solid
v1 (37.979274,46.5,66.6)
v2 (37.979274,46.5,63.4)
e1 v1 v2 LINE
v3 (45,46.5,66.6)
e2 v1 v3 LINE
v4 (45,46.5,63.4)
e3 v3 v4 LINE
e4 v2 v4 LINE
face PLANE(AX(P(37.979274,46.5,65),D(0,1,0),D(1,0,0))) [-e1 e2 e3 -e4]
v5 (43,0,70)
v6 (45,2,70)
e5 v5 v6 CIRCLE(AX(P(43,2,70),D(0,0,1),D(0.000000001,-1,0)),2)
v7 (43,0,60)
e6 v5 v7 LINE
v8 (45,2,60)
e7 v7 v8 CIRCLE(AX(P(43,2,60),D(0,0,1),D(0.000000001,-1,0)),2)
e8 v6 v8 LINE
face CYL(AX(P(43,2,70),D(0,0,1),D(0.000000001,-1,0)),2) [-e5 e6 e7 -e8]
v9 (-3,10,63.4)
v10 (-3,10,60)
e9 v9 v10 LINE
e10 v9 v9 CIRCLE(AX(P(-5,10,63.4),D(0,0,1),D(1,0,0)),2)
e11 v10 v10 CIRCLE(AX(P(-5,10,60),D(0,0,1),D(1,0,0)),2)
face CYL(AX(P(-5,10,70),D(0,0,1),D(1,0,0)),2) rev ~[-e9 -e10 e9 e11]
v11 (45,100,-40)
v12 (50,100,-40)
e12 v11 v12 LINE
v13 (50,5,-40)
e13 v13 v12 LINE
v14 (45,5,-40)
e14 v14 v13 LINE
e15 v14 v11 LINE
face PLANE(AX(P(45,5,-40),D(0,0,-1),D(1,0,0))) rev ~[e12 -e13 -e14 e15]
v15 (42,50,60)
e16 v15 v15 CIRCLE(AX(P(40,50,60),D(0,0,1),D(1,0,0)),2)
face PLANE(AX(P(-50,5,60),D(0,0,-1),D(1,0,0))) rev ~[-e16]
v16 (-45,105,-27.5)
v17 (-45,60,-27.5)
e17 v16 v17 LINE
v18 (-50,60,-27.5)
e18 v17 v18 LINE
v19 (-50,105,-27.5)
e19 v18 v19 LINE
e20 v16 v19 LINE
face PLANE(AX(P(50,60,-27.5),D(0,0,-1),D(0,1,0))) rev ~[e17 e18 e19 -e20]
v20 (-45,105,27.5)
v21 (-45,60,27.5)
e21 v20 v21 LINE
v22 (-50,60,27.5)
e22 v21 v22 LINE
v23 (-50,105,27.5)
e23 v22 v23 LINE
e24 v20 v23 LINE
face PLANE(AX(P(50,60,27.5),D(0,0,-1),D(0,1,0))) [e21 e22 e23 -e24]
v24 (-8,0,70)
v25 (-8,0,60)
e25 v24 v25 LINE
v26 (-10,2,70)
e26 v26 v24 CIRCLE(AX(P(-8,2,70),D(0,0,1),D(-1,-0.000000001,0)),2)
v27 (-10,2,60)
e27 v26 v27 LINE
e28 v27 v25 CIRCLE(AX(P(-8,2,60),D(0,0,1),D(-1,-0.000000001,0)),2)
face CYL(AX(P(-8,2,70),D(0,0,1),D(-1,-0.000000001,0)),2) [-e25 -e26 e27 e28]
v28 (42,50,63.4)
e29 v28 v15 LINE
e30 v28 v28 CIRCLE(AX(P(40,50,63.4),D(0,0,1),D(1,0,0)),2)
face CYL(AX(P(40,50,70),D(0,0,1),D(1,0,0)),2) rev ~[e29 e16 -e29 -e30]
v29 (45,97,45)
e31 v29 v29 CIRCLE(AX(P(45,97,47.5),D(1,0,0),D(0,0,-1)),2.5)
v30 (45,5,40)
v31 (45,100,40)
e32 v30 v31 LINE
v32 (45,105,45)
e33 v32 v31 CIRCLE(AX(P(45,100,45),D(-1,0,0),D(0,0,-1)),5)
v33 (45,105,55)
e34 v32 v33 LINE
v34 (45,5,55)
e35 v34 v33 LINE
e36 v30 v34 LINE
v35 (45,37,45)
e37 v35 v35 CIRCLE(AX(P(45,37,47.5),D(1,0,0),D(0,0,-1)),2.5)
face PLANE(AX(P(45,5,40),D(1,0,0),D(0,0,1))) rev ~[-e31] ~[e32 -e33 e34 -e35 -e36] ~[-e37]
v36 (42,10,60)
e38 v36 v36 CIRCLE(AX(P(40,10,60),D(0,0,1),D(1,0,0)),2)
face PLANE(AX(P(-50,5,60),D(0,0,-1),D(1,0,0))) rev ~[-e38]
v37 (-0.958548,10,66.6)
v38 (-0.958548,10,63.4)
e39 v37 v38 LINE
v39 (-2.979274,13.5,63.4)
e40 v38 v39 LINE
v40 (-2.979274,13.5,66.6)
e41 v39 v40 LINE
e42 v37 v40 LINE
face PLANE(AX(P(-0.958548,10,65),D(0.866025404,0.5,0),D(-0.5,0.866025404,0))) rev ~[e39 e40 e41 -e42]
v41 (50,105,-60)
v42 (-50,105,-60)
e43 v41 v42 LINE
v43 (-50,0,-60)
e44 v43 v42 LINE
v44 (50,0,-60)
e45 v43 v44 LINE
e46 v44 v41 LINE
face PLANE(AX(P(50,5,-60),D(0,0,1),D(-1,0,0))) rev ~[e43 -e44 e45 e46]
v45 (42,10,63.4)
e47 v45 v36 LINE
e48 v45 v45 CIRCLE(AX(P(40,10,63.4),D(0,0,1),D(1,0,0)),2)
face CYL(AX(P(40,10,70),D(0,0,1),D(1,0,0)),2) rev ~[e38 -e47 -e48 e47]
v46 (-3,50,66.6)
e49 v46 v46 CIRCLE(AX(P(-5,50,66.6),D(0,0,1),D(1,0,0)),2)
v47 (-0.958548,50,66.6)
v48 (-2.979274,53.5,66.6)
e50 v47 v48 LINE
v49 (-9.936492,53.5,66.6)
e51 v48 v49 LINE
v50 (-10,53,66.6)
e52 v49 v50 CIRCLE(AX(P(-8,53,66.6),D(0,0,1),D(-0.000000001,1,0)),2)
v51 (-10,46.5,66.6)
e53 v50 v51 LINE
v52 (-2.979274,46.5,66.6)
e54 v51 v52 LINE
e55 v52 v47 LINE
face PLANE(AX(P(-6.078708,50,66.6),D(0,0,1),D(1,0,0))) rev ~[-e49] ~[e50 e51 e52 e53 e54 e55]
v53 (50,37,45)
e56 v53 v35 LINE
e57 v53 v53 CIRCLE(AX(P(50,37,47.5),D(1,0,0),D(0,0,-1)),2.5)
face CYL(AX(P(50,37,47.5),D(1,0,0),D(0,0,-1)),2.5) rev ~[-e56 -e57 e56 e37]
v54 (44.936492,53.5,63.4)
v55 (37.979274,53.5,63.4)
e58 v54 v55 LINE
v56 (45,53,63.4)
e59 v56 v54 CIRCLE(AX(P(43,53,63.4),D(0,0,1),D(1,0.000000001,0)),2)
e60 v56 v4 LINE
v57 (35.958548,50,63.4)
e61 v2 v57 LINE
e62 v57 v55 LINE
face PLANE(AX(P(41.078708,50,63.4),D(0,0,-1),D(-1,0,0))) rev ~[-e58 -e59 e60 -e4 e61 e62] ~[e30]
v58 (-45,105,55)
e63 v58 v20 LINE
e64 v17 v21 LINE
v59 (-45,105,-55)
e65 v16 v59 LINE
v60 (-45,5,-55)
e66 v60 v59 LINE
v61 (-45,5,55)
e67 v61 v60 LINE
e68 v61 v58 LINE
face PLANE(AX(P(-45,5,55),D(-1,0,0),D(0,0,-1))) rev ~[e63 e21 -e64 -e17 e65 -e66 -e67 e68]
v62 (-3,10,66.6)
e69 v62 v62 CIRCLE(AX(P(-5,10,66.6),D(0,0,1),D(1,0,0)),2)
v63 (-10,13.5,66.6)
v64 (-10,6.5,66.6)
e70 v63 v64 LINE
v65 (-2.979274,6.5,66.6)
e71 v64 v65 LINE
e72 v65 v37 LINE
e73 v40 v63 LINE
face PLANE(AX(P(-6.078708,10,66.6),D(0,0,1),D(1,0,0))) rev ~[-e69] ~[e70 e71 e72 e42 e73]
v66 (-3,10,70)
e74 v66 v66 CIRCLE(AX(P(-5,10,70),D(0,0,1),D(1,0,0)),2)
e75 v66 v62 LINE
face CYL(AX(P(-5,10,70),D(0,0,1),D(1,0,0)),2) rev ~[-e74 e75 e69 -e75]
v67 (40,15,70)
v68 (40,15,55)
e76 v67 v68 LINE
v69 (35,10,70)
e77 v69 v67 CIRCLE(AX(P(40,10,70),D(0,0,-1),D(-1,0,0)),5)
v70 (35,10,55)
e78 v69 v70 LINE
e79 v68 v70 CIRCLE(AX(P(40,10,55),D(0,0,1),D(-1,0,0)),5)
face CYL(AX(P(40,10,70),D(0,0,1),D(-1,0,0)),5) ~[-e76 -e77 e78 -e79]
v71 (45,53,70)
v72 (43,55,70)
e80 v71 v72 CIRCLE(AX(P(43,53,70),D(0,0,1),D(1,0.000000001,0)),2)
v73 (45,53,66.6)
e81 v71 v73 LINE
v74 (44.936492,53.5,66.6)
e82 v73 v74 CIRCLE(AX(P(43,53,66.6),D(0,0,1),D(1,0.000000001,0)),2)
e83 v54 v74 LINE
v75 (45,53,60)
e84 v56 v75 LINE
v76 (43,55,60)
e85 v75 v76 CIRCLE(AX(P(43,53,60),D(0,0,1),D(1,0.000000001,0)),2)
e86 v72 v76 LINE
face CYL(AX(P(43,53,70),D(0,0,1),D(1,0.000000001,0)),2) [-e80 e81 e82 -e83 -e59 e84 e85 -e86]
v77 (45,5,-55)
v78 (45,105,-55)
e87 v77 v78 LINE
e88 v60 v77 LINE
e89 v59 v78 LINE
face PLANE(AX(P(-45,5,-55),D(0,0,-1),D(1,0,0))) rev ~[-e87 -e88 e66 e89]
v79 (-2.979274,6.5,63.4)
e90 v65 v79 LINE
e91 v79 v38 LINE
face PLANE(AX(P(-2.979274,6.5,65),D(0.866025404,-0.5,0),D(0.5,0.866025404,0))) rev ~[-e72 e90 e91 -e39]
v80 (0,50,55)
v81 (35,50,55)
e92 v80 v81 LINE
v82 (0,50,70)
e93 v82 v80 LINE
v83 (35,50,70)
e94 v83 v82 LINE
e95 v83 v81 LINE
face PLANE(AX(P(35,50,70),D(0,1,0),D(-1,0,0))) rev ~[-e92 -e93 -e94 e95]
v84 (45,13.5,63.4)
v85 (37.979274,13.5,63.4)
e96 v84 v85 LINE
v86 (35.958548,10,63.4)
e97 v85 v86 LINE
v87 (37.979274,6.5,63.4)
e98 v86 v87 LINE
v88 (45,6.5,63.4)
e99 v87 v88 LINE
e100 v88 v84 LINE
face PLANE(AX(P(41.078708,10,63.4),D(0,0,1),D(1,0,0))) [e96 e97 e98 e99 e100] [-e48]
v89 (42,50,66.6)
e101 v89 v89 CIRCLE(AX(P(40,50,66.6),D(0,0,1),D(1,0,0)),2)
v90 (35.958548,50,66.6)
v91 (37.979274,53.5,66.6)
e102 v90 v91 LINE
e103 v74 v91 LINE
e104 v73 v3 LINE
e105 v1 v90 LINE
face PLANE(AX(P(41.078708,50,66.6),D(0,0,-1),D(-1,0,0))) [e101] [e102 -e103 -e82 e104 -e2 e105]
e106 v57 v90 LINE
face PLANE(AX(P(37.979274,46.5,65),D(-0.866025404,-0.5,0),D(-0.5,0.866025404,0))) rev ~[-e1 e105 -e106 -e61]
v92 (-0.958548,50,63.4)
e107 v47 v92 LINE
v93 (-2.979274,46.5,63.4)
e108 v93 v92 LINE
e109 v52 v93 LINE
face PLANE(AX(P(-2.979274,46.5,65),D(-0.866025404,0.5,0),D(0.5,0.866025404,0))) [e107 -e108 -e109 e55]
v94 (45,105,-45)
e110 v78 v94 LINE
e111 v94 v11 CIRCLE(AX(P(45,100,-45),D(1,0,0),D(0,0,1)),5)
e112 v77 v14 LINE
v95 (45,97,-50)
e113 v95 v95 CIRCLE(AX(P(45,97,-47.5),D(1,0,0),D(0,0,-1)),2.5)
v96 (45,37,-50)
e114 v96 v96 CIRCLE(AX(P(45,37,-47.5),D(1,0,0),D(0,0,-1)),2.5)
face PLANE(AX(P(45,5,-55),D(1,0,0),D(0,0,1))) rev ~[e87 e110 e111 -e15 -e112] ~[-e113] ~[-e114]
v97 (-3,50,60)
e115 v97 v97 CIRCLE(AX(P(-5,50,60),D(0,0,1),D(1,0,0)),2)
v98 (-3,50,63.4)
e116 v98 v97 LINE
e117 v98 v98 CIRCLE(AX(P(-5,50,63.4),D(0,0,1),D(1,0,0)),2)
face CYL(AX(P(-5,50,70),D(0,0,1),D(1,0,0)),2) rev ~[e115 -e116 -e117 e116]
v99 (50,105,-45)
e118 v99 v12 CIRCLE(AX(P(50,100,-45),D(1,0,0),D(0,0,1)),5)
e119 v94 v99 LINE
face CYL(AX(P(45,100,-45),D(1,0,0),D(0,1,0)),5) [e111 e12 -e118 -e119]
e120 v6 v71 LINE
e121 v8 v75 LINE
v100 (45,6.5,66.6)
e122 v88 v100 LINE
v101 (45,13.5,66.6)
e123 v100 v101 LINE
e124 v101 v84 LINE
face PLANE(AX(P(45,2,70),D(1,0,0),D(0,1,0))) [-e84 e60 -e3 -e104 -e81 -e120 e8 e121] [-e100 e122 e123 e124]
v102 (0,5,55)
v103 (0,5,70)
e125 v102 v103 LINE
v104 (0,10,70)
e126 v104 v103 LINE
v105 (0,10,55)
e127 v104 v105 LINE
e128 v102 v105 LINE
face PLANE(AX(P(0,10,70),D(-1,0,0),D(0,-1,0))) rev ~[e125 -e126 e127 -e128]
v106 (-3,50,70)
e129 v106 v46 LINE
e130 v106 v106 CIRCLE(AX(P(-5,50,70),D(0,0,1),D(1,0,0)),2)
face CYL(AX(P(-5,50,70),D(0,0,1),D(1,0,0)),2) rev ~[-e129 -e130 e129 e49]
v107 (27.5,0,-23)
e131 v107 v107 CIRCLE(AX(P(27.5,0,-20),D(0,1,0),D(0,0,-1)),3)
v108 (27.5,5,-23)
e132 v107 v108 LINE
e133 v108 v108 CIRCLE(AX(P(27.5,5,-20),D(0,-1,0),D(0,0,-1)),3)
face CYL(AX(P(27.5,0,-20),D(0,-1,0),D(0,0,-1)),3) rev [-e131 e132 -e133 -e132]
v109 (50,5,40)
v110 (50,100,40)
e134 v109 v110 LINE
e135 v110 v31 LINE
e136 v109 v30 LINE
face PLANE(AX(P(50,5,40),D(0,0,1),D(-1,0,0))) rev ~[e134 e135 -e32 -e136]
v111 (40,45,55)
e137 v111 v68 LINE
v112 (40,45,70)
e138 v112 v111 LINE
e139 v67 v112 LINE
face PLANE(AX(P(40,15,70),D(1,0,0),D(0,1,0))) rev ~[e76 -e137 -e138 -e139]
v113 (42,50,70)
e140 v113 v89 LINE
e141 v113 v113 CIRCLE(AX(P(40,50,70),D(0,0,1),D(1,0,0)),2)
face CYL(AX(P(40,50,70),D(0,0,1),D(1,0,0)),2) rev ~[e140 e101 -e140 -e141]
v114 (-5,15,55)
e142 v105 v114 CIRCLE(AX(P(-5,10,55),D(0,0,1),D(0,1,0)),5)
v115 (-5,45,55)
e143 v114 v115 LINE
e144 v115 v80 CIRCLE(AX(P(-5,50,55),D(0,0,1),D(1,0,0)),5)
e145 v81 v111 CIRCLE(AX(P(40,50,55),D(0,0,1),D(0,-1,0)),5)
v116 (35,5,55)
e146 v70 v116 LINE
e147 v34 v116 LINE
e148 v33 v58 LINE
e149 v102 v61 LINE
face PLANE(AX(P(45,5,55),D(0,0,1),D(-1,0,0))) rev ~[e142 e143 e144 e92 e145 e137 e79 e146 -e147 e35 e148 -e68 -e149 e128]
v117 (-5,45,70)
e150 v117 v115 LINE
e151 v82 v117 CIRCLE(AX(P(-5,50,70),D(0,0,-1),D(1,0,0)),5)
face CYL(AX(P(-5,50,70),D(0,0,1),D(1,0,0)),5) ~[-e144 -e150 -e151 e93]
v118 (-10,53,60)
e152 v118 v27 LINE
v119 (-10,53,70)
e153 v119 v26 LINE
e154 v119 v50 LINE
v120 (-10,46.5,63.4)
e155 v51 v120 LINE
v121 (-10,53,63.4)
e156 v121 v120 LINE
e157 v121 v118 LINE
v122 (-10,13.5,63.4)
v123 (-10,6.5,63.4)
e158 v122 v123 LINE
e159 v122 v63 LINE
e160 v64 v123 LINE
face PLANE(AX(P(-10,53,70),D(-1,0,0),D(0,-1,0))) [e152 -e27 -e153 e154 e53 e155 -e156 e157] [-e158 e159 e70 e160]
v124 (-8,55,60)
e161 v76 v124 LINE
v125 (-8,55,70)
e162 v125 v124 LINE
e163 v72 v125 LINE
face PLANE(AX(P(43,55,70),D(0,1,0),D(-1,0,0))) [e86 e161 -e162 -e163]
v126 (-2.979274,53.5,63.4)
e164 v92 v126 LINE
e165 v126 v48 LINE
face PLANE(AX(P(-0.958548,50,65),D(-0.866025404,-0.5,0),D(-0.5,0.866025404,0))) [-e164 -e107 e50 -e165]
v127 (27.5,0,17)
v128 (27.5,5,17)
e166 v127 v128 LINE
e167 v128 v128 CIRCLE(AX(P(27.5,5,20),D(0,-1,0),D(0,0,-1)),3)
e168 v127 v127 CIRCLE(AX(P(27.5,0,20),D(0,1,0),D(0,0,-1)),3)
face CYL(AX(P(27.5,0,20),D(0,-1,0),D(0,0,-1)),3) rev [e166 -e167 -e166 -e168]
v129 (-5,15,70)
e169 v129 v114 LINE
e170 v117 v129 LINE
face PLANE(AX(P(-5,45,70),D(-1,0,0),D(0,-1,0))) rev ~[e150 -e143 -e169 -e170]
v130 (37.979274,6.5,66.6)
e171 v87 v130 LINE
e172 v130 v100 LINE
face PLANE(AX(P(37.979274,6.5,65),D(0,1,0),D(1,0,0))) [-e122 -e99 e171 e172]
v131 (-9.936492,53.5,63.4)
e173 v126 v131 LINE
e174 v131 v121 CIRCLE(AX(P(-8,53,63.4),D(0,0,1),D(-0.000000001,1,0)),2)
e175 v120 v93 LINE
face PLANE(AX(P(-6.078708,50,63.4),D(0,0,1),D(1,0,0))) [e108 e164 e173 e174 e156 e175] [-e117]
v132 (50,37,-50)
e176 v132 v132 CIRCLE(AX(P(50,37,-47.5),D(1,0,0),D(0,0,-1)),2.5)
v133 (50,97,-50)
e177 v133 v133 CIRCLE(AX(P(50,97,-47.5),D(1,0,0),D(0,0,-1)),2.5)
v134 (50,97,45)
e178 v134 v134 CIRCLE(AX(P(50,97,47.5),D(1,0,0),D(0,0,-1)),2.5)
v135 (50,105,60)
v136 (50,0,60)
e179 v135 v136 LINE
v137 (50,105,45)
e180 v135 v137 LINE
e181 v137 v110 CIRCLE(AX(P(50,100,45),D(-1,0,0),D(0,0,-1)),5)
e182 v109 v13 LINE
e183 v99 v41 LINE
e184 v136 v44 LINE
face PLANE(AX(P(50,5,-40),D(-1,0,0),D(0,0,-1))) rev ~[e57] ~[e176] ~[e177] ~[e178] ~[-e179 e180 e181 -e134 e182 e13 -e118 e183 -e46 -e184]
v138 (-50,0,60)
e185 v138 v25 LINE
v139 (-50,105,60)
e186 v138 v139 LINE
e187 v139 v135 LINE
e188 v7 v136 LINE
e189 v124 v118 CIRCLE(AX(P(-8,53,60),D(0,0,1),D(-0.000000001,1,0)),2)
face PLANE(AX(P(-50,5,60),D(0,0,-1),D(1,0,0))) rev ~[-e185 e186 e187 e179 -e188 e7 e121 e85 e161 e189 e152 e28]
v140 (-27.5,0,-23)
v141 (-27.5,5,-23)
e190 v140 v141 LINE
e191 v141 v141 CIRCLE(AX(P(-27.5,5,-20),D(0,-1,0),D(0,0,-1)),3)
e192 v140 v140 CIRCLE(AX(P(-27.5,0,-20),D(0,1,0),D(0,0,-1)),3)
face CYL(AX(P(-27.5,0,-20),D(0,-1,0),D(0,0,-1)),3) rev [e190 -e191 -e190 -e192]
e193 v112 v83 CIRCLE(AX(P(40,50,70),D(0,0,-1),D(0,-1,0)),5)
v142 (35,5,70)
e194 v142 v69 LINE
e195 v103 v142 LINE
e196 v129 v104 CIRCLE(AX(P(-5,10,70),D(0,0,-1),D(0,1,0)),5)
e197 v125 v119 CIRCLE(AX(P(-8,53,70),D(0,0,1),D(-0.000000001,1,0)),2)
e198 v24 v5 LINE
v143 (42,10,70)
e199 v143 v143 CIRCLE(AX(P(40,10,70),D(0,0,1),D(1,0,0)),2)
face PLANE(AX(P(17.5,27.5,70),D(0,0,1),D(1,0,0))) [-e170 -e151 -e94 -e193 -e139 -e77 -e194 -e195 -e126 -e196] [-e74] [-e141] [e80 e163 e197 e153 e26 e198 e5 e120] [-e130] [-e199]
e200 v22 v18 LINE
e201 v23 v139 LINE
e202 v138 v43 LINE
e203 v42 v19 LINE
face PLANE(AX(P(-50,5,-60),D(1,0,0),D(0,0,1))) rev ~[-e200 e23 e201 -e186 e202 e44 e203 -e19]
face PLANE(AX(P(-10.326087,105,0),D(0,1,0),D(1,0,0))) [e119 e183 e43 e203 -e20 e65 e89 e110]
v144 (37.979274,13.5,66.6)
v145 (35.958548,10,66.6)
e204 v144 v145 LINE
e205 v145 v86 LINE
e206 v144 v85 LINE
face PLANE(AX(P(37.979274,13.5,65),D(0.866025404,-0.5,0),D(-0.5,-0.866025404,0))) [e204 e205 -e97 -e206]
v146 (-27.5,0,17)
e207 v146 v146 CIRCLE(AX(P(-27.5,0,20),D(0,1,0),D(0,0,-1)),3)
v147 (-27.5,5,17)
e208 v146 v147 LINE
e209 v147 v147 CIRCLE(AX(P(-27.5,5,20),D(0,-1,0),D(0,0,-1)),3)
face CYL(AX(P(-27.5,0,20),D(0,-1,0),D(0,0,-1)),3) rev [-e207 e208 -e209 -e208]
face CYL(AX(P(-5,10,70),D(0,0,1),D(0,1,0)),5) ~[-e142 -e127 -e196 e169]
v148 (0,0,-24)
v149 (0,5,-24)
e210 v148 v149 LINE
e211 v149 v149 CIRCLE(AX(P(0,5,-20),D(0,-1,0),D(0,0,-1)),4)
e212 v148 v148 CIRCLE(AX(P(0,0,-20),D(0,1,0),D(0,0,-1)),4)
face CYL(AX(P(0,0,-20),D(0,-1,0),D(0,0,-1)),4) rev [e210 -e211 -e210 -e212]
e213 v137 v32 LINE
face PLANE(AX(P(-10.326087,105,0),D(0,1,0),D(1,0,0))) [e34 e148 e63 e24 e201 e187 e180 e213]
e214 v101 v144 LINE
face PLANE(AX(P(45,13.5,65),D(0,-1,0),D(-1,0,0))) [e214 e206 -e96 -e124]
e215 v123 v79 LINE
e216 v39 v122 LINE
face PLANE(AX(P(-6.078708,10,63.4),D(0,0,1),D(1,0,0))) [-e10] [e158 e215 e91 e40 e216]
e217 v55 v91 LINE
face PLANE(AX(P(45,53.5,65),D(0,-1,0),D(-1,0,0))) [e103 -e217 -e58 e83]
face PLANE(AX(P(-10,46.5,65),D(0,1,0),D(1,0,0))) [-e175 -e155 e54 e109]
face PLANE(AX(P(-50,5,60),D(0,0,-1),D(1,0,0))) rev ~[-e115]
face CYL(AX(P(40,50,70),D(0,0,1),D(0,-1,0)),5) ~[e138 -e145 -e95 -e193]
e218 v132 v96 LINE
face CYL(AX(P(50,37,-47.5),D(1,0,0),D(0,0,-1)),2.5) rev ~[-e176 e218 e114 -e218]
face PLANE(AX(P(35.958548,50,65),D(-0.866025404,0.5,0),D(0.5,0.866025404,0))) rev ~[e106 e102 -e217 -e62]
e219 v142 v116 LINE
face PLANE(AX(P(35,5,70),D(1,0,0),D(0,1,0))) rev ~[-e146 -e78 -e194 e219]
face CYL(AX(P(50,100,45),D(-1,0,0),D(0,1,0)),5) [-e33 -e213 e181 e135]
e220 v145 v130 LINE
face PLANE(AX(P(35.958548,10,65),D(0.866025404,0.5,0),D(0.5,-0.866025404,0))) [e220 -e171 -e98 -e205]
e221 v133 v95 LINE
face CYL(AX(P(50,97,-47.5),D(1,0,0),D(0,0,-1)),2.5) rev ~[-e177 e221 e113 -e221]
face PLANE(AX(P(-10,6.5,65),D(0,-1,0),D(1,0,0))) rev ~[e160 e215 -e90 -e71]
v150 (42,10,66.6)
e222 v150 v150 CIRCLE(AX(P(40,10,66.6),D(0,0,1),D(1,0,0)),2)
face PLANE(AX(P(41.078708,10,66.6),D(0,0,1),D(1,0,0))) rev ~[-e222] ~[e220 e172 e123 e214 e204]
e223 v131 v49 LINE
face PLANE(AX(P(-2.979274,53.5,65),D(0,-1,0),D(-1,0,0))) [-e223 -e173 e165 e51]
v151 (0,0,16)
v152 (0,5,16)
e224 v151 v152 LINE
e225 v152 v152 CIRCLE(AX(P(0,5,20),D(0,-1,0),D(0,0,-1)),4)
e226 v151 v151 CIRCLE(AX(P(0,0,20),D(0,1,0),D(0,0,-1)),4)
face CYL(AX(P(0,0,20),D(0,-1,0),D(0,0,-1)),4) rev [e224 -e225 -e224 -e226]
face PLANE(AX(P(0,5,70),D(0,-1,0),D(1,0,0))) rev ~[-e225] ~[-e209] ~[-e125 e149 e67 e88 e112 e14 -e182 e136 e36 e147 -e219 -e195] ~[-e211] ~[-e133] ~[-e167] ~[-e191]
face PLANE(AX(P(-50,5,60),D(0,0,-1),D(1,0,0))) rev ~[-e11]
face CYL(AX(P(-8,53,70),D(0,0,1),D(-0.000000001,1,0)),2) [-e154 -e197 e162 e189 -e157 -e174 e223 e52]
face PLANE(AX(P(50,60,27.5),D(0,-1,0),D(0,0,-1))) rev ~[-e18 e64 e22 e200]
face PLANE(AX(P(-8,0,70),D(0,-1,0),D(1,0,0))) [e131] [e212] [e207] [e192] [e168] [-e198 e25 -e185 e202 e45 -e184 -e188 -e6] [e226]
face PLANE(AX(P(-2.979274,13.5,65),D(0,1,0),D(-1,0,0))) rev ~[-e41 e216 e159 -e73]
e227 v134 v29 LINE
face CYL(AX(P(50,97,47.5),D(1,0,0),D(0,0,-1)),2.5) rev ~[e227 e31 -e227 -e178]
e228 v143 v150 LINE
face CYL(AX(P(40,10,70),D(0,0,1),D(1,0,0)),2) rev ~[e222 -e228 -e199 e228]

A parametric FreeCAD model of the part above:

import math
import FreeCAD as App
import Part
import Sketcher

V = App.Vector
Q = App.Units.Quantity


def edges_at(feature, points):
    """Names of the edges that pass closest to the given points."""
    edges = feature.Shape.Edges
    near = lambda p: min(range(len(edges)), key=lambda i: edges[i].distToShape(Part.Vertex(*p))[0])
    return sorted({f"Edge{near(p) + 1}" for p in points})


def add_polygon(sketch, points):
    """Adds a closed chain of lines whose ends are joined by coincident constraints."""
    first, n = sketch.GeometryCount, len(points)
    for a, b in zip(points, points[1:] + points[:1]):
        sketch.addGeometry(Part.LineSegment(App.Vector(*a, 0), App.Vector(*b, 0)), False)
    for i in range(n):
        sketch.addConstraint(Sketcher.Constraint("Coincident", first + i, 2, first + (i + 1) % n, 1))

doc = App.newDocument("Part")
body = doc.addObject("PartDesign::Body", "Body")

sketch1 = body.newObject("Sketcher::SketchObject", "Sketch")
sketch1.AttachmentSupport = (doc.getObject("XZ_Plane"), [""])
sketch1.MapMode = "FlatFace"
add_polygon(sketch1, [(-50, -60), (-50, 60), (50, 60), (50, -60)])
sketch1.addConstraint([
    Sketcher.Constraint("Vertical", 0),
    Sketcher.Constraint("Horizontal", 1),
    Sketcher.Constraint("Vertical", 2),
    Sketcher.Constraint("Horizontal", 3),
    Sketcher.Constraint("Symmetric", 0, 2, 2, 2, -1, 1),
    Sketcher.Constraint("DistanceX", 1, 1, 1, 2, Q("100 mm")),
    Sketcher.Constraint("DistanceY", 0, 1, 0, 2, Q("120 mm")),
])
pad1 = body.newObject("PartDesign::Pad", "Pad")
pad1.Profile = sketch1
pad1.Length = 5
pad1.Reversed = True

sketch2 = body.newObject("Sketcher::SketchObject", "Sketch001")
sketch2.AttachmentSupport = (doc.getObject("XZ_Plane"), [""])
sketch2.MapMode = "FlatFace"
sketch2.addGeometry(Part.Circle(V(27.5, 20, 0), V(0, 0, 1), 3), False)
sketch2.addConstraint([
    Sketcher.Constraint("Diameter", 0, Q("6 mm")),
    Sketcher.Constraint("DistanceY", -1, 1, 0, 3, Q("20 mm")),
    Sketcher.Constraint("DistanceX", -1, 1, 0, 3, Q("27.5 mm")),
])
pocket1 = body.newObject("PartDesign::Pocket", "Pocket")
pocket1.Profile = sketch2
pocket1.Type = "UpToFirst"

sketch3 = body.newObject("Sketcher::SketchObject", "Sketch002")
sketch3.AttachmentSupport = (doc.getObject("XZ_Plane"), [""])
sketch3.MapMode = "FlatFace"
sketch3.addGeometry(Part.Circle(V(0, 20, 0), V(0, 0, 1), 4), False)
sketch3.addConstraint([
    Sketcher.Constraint("PointOnObject", 0, 3, -2),
    Sketcher.Constraint("Diameter", 0, Q("8 mm")),
    Sketcher.Constraint("DistanceY", -1, 1, 0, 3, Q("20 mm")),
])
pocket2 = body.newObject("PartDesign::Pocket", "Pocket001")
pocket2.Profile = sketch3
pocket2.Type = "UpToFirst"

sketch4 = body.newObject("Sketcher::SketchObject", "Sketch003")
sketch4.AttachmentSupport = (doc.getObject("XZ_Plane"), [""])
sketch4.MapMode = "FlatFace"
sketch4.addGeometry(Part.Circle(V(-27.5, 20, 0), V(0, 0, 1), 3), False)
sketch4.addConstraint([
    Sketcher.Constraint("Diameter", 0, Q("6 mm")),
    Sketcher.Constraint("DistanceY", -1, 1, 0, 3, Q("20 mm")),
    Sketcher.Constraint("DistanceX", 0, 3, -1, 1, Q("27.5 mm")),
])
pocket3 = body.newObject("PartDesign::Pocket", "Pocket002")
pocket3.Profile = sketch4
pocket3.Type = "UpToFirst"

sketch5 = body.newObject("Sketcher::SketchObject", "Sketch004")
sketch5.AttachmentSupport = (doc.getObject("XZ_Plane"), [""])
sketch5.MapMode = "FlatFace"
sketch5.addGeometry(Part.Circle(V(-27.5, -20, 0), V(0, 0, 1), 3), False)
sketch5.addConstraint([
    Sketcher.Constraint("Diameter", 0, Q("6 mm")),
    Sketcher.Constraint("DistanceY", 0, 3, -1, 1, Q("20 mm")),
    Sketcher.Constraint("DistanceX", 0, 3, -1, 1, Q("27.5 mm")),
])
pocket4 = body.newObject("PartDesign::Pocket", "Pocket003")
pocket4.Profile = sketch5
pocket4.Type = "UpToFirst"

sketch6 = body.newObject("Sketcher::SketchObject", "Sketch005")
sketch6.AttachmentSupport = (doc.getObject("XZ_Plane"), [""])
sketch6.MapMode = "FlatFace"
sketch6.addGeometry(Part.Circle(V(0, -20, 0), V(0, 0, 1), 4), False)
sketch6.addConstraint([
    Sketcher.Constraint("PointOnObject", 0, 3, -2),
    Sketcher.Constraint("Diameter", 0, Q("8 mm")),
    Sketcher.Constraint("DistanceY", 0, 3, -1, 1, Q("20 mm")),
])
pocket5 = body.newObject("PartDesign::Pocket", "Pocket004")
pocket5.Profile = sketch6
pocket5.Type = "UpToFirst"

sketch7 = body.newObject("Sketcher::SketchObject", "Sketch006")
sketch7.AttachmentSupport = (doc.getObject("XZ_Plane"), [""])
sketch7.MapMode = "FlatFace"
sketch7.addGeometry(Part.Circle(V(27.5, -20, 0), V(0, 0, 1), 3), False)
sketch7.addConstraint([
    Sketcher.Constraint("Diameter", 0, Q("6 mm")),
    Sketcher.Constraint("DistanceY", 0, 3, -1, 1, Q("20 mm")),
    Sketcher.Constraint("DistanceX", -1, 1, 0, 3, Q("27.5 mm")),
])
pocket6 = body.newObject("PartDesign::Pocket", "Pocket005")
pocket6.Profile = sketch7
pocket6.Type = "UpToFirst"

sketch8 = body.newObject("Sketcher::SketchObject", "Sketch007")
sketch8.AttachmentSupport = (doc.getObject("XZ_Plane"), [""])
sketch8.MapMode = "FlatFace"
sketch8.AttachmentOffset = App.Placement(V(0, 0, -5), App.Rotation())
add_polygon(sketch8, [(45, -40), (50, -40), (50, -60), (-50, -60), (-50, 60), (50, 60), (50, 40), (45, 40), (45, 55), (-45, 55), (-45, -55), (45, -55)])
sketch8.addConstraint([
    Sketcher.Constraint("Horizontal", 0),
    Sketcher.Constraint("Vertical", 1),
    Sketcher.Constraint("Horizontal", 2),
    Sketcher.Constraint("Vertical", 3),
    Sketcher.Constraint("Horizontal", 4),
    Sketcher.Constraint("Vertical", 5),
    Sketcher.Constraint("Horizontal", 6),
    Sketcher.Constraint("Vertical", 7),
    Sketcher.Constraint("Horizontal", 8),
    Sketcher.Constraint("Vertical", 9),
    Sketcher.Constraint("Horizontal", 10),
    Sketcher.Constraint("Vertical", 11),
    Sketcher.Constraint("Symmetric", 1, 2, 3, 2, -1, 1),
    Sketcher.Constraint("Symmetric", 7, 2, 9, 2, -1, 1),
    Sketcher.Constraint("Symmetric", 0, 2, 5, 2, -1),
    Sketcher.Constraint("Vertical", 7, 2, 10, 2),
    Sketcher.Constraint("DistanceX", 0, 1, 0, 2, Q("5 mm")),
    Sketcher.Constraint("DistanceX", 2, 2, 2, 1, Q("100 mm")),
    Sketcher.Constraint("DistanceY", 1, 2, 1, 1, Q("20 mm")),
    Sketcher.Constraint("DistanceY", 3, 1, 3, 2, Q("120 mm")),
    Sketcher.Constraint("DistanceY", 7, 1, 7, 2, Q("15 mm")),
])
pad2 = body.newObject("PartDesign::Pad", "Pad001")
pad2.Profile = sketch8
pad2.Length = 100
pad2.Reversed = True

sketch9 = body.newObject("Sketcher::SketchObject", "Sketch008")
sketch9.AttachmentSupport = (doc.getObject("YZ_Plane"), [""])
sketch9.MapMode = "FlatFace"
sketch9.AttachmentOffset = App.Placement(V(0, 0, 50), App.Rotation())
add_polygon(sketch9, [(105, 27.5), (60, 27.5), (60, -27.5), (105, -27.5)])
sketch9.addConstraint([
    Sketcher.Constraint("Horizontal", 0),
    Sketcher.Constraint("Vertical", 1),
    Sketcher.Constraint("Horizontal", 2),
    Sketcher.Constraint("Vertical", 3),
    Sketcher.Constraint("DistanceX", 0, 2, 0, 1, Q("45 mm")),
    Sketcher.Constraint("DistanceY", 1, 2, 1, 1, Q("55 mm")),
    Sketcher.Constraint("DistanceX", -1, 1, 0, 2, Q("60 mm")),
    Sketcher.Constraint("DistanceY", -1, 1, 0, 2, Q("27.5 mm")),
])
pocket7 = body.newObject("PartDesign::Pocket", "Pocket006")
pocket7.Profile = sketch9
pocket7.Type = "ThroughAll"

sketch10 = body.newObject("Sketcher::SketchObject", "Sketch009")
sketch10.AttachmentSupport = (doc.getObject("XY_Plane"), [""])
sketch10.MapMode = "FlatFace"
sketch10.AttachmentOffset = App.Placement(V(0, 0, 60), App.Rotation())
sketch10.addGeometry([
    Part.LineSegment(V(0, 5, 0), V(35, 5, 0)),
    Part.LineSegment(V(35, 5, 0), V(35, 10, 0)),
    Part.ArcOfCircle(Part.Circle(V(40, 10, 0), V(0, 0, 1), 5), math.radians(90), math.radians(180)),
    Part.LineSegment(V(40, 15, 0), V(40, 45, 0)),
    Part.ArcOfCircle(Part.Circle(V(40, 50, 0), V(0, 0, 1), 5), math.radians(180), math.radians(270)),
    Part.LineSegment(V(35, 50, 0), V(0, 50, 0)),
    Part.ArcOfCircle(Part.Circle(V(-5, 50, 0), V(0, 0, 1), 5), math.radians(-90), math.radians(0)),
    Part.LineSegment(V(-5, 45, 0), V(-5, 15, 0)),
    Part.ArcOfCircle(Part.Circle(V(-5, 10, 0), V(0, 0, 1), 5), math.radians(0), math.radians(90)),
    Part.LineSegment(V(0, 10, 0), V(0, 5, 0)),
], False)
sketch10.addConstraint([
    Sketcher.Constraint("Coincident", 0, 2, 1, 1),
    Sketcher.Constraint("Tangent", 1, 2, 2, 2),
    Sketcher.Constraint("Coincident", 2, 1, 3, 1),
    Sketcher.Constraint("Coincident", 3, 2, 4, 2),
    Sketcher.Constraint("Coincident", 4, 1, 5, 1),
    Sketcher.Constraint("Coincident", 5, 2, 6, 2),
    Sketcher.Constraint("Coincident", 6, 1, 7, 1),
    Sketcher.Constraint("Coincident", 7, 2, 8, 2),
    Sketcher.Constraint("Tangent", 8, 1, 9, 1),
    Sketcher.Constraint("Coincident", 9, 2, 0, 1),
    Sketcher.Constraint("Horizontal", 0),
    Sketcher.Constraint("Vertical", 1),
    Sketcher.Constraint("Vertical", 3),
    Sketcher.Constraint("Horizontal", 5),
    Sketcher.Constraint("Vertical", 7),
    Sketcher.Constraint("Vertical", 9),
    Sketcher.Constraint("Equal", 2, 4),
    Sketcher.Constraint("Equal", 4, 6),
    Sketcher.Constraint("Equal", 6, 8),
    Sketcher.Constraint("PointOnObject", 5, 2, -2),
    Sketcher.Constraint("PointOnObject", 8, 1, -2),
    Sketcher.Constraint("Horizontal", 4, 3, 6, 3),
    Sketcher.Constraint("Horizontal", 2, 3, 8, 3),
    Sketcher.Constraint("Horizontal", 6, 3, 4, 1),
    Sketcher.Constraint("Vertical", 2, 3, 4, 3),
    Sketcher.Constraint("Vertical", 4, 3, 2, 1),
    Sketcher.Constraint("Vertical", 8, 3, 6, 1),
    Sketcher.Constraint("Radius", 2, Q("5 mm")),
    Sketcher.Constraint("DistanceX", 0, 1, 0, 2, Q("35 mm")),
    Sketcher.Constraint("DistanceY", 1, 1, 1, 2, Q("5 mm")),
    Sketcher.Constraint("DistanceY", 3, 1, 3, 2, Q("30 mm")),
    Sketcher.Constraint("DistanceY", -1, 1, 2, 3, Q("10 mm")),
])
pocket8 = body.newObject("PartDesign::Pocket", "Pocket007")
pocket8.Profile = sketch10
pocket8.Type = "UpToFirst"

sketch11 = body.newObject("Sketcher::SketchObject", "Sketch010")
sketch11.AttachmentSupport = (doc.getObject("XY_Plane"), [""])
sketch11.MapMode = "FlatFace"
sketch11.AttachmentOffset = App.Placement(V(0, 0, 70), App.Rotation())
sketch11.addGeometry([
    Part.LineSegment(V(-8, 0, 0), V(43, 0, 0)),
    Part.ArcOfCircle(Part.Circle(V(43, 2, 0), V(0, 0, 1), 2), math.radians(-90), math.radians(0)),
    Part.LineSegment(V(45, 2, 0), V(45, 53, 0)),
    Part.ArcOfCircle(Part.Circle(V(43, 53, 0), V(0, 0, 1), 2), math.radians(0), math.radians(90)),
    Part.LineSegment(V(43, 55, 0), V(-8, 55, 0)),
    Part.ArcOfCircle(Part.Circle(V(-8, 53, 0), V(0, 0, 1), 2), math.radians(90), math.radians(180)),
    Part.LineSegment(V(-10, 53, 0), V(-10, 2, 0)),
    Part.ArcOfCircle(Part.Circle(V(-8, 2, 0), V(0, 0, 1), 2), math.radians(-180), math.radians(-90)),
    Part.Circle(V(-5, 10, 0), V(0, 0, 1), 2),
    Part.LineSegment(V(35, 5, 0), V(0, 5, 0)),
    Part.LineSegment(V(0, 5, 0), V(0, 10, 0)),
    Part.ArcOfCircle(Part.Circle(V(-5, 10, 0), V(0, 0, 1), 5), math.radians(0), math.radians(90)),
    Part.LineSegment(V(-5, 15, 0), V(-5, 45, 0)),
    Part.ArcOfCircle(Part.Circle(V(-5, 50, 0), V(0, 0, 1), 5), math.radians(-90), math.radians(0)),
    Part.LineSegment(V(0, 50, 0), V(35, 50, 0)),
    Part.ArcOfCircle(Part.Circle(V(40, 50, 0), V(0, 0, 1), 5), math.radians(180), math.radians(270)),
    Part.LineSegment(V(40, 45, 0), V(40, 15, 0)),
    Part.ArcOfCircle(Part.Circle(V(40, 10, 0), V(0, 0, 1), 5), math.radians(90), math.radians(180)),
    Part.LineSegment(V(35, 10, 0), V(35, 5, 0)),
    Part.Circle(V(40, 10, 0), V(0, 0, 1), 2),
    Part.Circle(V(-5, 50, 0), V(0, 0, 1), 2),
    Part.Circle(V(40, 50, 0), V(0, 0, 1), 2),
], False)
sketch11.addConstraint([
    Sketcher.Constraint("Tangent", 0, 2, 1, 1),
    Sketcher.Constraint("Tangent", 1, 2, 2, 1),
    Sketcher.Constraint("Tangent", 2, 2, 3, 1),
    Sketcher.Constraint("Tangent", 3, 2, 4, 1),
    Sketcher.Constraint("Tangent", 4, 2, 5, 1),
    Sketcher.Constraint("Tangent", 5, 2, 6, 1),
    Sketcher.Constraint("Tangent", 6, 2, 7, 1),
    Sketcher.Constraint("Tangent", 7, 2, 0, 1),
    Sketcher.Constraint("Coincident", 9, 2, 10, 1),
    Sketcher.Constraint("Tangent", 10, 2, 11, 1),
    Sketcher.Constraint("Coincident", 11, 2, 12, 1),
    Sketcher.Constraint("Coincident", 12, 2, 13, 1),
    Sketcher.Constraint("Coincident", 13, 2, 14, 1),
    Sketcher.Constraint("Coincident", 14, 2, 15, 1),
    Sketcher.Constraint("Coincident", 15, 2, 16, 1),
    Sketcher.Constraint("Coincident", 16, 2, 17, 1),
    Sketcher.Constraint("Tangent", 17, 2, 18, 1),
    Sketcher.Constraint("Coincident", 18, 2, 9, 1),
    Sketcher.Constraint("Horizontal", 0),
    Sketcher.Constraint("Vertical", 2),
    Sketcher.Constraint("Horizontal", 4),
    Sketcher.Constraint("Vertical", 6),
    Sketcher.Constraint("Horizontal", 9),
    Sketcher.Constraint("Vertical", 10),
    Sketcher.Constraint("Vertical", 12),
    Sketcher.Constraint("Horizontal", 14),
    Sketcher.Constraint("Vertical", 16),
    Sketcher.Constraint("Vertical", 18),
    Sketcher.Constraint("Coincident", 11, 3, 8, 3),
    Sketcher.Constraint("Coincident", 19, 3, 17, 3),
    Sketcher.Constraint("Coincident", 20, 3, 13, 3),
    Sketcher.Constraint("Coincident", 21, 3, 15, 3),
    Sketcher.Constraint("Equal", 1, 3),
    Sketcher.Constraint("Equal", 3, 5),
    Sketcher.Constraint("Equal", 5, 7),
    Sketcher.Constraint("Equal", 7, 8),
    Sketcher.Constraint("Equal", 11, 13),
    Sketcher.Constraint("Equal", 13, 15),
    Sketcher.Constraint("Equal", 15, 17),
    Sketcher.Constraint("Equal", 8, 19),
    Sketcher.Constraint("Equal", 19, 20),
    Sketcher.Constraint("Equal", 20, 21),
    Sketcher.Constraint("PointOnObject", 0, 2, -1),
    Sketcher.Constraint("PointOnObject", 9, 2, -2),
    Sketcher.Constraint("PointOnObject", 13, 2, -2),
    Sketcher.Constraint("Horizontal", 13, 3, 15, 3),
    Sketcher.Constraint("Horizontal", 11, 3, 17, 3),
    Sketcher.Constraint("Horizontal", 21, 3, 13, 2),
    Sketcher.Constraint("Vertical", 15, 3, 17, 3),
    Sketcher.Constraint("Vertical", 20, 3, 11, 2),
    Sketcher.Constraint("Vertical", 21, 3, 15, 2),
    Sketcher.Constraint("Equal", 4, 2),
    Sketcher.Constraint("Diameter", 8, Q("4 mm")),
    Sketcher.Constraint("Radius", 11, Q("5 mm")),
    Sketcher.Constraint("DistanceX", 0, 1, 0, 2, Q("51 mm")),
    Sketcher.Constraint("DistanceX", 9, 2, 9, 1, Q("35 mm")),
    Sketcher.Constraint("DistanceY", 10, 1, 10, 2, Q("5 mm")),
    Sketcher.Constraint("DistanceY", 12, 1, 12, 2, Q("30 mm")),
    Sketcher.Constraint("DistanceX", -1, 1, 1, 3, Q("43 mm")),
    Sketcher.Constraint("DistanceY", -1, 1, 8, 3, Q("10 mm")),
])
pad3 = body.newObject("PartDesign::Pad", "Pad002")
pad3.Profile = sketch11
pad3.Length = 10
pad3.Reversed = True

sketch12 = body.newObject("Sketcher::SketchObject", "Sketch011")
sketch12.AttachmentSupport = (doc.getObject("XY_Plane"), [""])
sketch12.MapMode = "FlatFace"
sketch12.AttachmentOffset = App.Placement(V(0, 0, 65), App.Rotation())
add_polygon(sketch12, [(45, 53.5), (37.979274, 53.5), (35.958548, 50), (37.979274, 46.5), (45, 46.5)])
add_polygon(sketch12, [(-0.958548, 50), (-2.979274, 53.5), (-10, 53.5), (-10, 46.5), (-2.979274, 46.5)])
add_polygon(sketch12, [(35.958548, 10), (37.979274, 6.5), (45, 6.5), (45, 13.5), (37.979274, 13.5)])
add_polygon(sketch12, [(-0.958548, 10), (-2.979274, 13.5), (-10, 13.5), (-10, 6.5), (-2.979274, 6.5)])
sketch12.addConstraint([
    Sketcher.Constraint("Horizontal", 0),
    Sketcher.Constraint("Horizontal", 3),
    Sketcher.Constraint("Vertical", 4),
    Sketcher.Constraint("Horizontal", 6),
    Sketcher.Constraint("Vertical", 7),
    Sketcher.Constraint("Horizontal", 8),
    Sketcher.Constraint("Horizontal", 11),
    Sketcher.Constraint("Vertical", 12),
    Sketcher.Constraint("Horizontal", 13),
    Sketcher.Constraint("Horizontal", 16),
    Sketcher.Constraint("Vertical", 17),
    Sketcher.Constraint("Horizontal", 18),
    Sketcher.Constraint("Parallel", 2, 5),
    Sketcher.Constraint("Parallel", 1, 9),
    Sketcher.Constraint("Parallel", 5, 10),
    Sketcher.Constraint("Parallel", 9, 14),
    Sketcher.Constraint("Parallel", 10, 15),
    Sketcher.Constraint("Parallel", 14, 19),
    Sketcher.Constraint("Horizontal", 4, 2, 5, 2),
    Sketcher.Constraint("Horizontal", 3, 2, 7, 2),
    Sketcher.Constraint("Horizontal", 1, 2, 9, 2),
    Sketcher.Constraint("Horizontal", 13, 2, 15, 2),
    Sketcher.Constraint("Horizontal", 11, 2, 17, 2),
    Sketcher.Constraint("Horizontal", 14, 2, 19, 2),
    Sketcher.Constraint("Vertical", 0, 2, 2, 2),
    Sketcher.Constraint("Vertical", 5, 2, 8, 2),
    Sketcher.Constraint("Vertical", 2, 2, 10, 2),
    Sketcher.Constraint("Vertical", 4, 2, 11, 2),
    Sketcher.Constraint("Vertical", 10, 2, 13, 2),
    Sketcher.Constraint("Vertical", 1, 2, 14, 2),
    Sketcher.Constraint("Vertical", 8, 2, 15, 2),
    Sketcher.Constraint("Vertical", 7, 2, 16, 2),
    Sketcher.Constraint("Equal", 3, 6),
    Sketcher.Constraint("DistanceY", 4, 1, 4, 2, Q("7 mm")),
    Sketcher.Constraint("Angle", 1, Q("-120 deg")),
    Sketcher.Constraint("DistanceY", -1, 1, 1, 2, Q("50 mm")),
    Sketcher.Constraint("DistanceX", -1, 1, 3, 2, Q("45 mm")),
    Sketcher.Constraint("DistanceX", 6, 2, -1, 1, Q("10 mm")),
    Sketcher.Constraint("DistanceY", -1, 1, 14, 2, Q("10 mm")),
    Sketcher.Constraint("DistanceX", 0, 2, 0, 1, Q("7.020726 mm")),
])
pocket9 = body.newObject("PartDesign::Pocket", "Pocket008")
pocket9.Profile = sketch12
pocket9.Length = 3.2
pocket9.Midplane = True

sketch13 = body.newObject("Sketcher::SketchObject", "Sketch012")
sketch13.AttachmentSupport = (doc.getObject("YZ_Plane"), [""])
sketch13.MapMode = "FlatFace"
sketch13.AttachmentOffset = App.Placement(V(0, 0, 50), App.Rotation())
sketch13.addGeometry(Part.Circle(V(97, 47.5, 0), V(0, 0, 1), 2.5), False)
sketch13.addConstraint([
    Sketcher.Constraint("Diameter", 0, Q("5 mm")),
    Sketcher.Constraint("DistanceX", -1, 1, 0, 3, Q("97 mm")),
    Sketcher.Constraint("DistanceY", -1, 1, 0, 3, Q("47.5 mm")),
])
pocket10 = body.newObject("PartDesign::Pocket", "Pocket009")
pocket10.Profile = sketch13
pocket10.Type = "UpToFirst"

sketch14 = body.newObject("Sketcher::SketchObject", "Sketch013")
sketch14.AttachmentSupport = (doc.getObject("YZ_Plane"), [""])
sketch14.MapMode = "FlatFace"
sketch14.AttachmentOffset = App.Placement(V(0, 0, 50), App.Rotation())
sketch14.addGeometry(Part.Circle(V(37, 47.5, 0), V(0, 0, 1), 2.5), False)
sketch14.addConstraint([
    Sketcher.Constraint("Diameter", 0, Q("5 mm")),
    Sketcher.Constraint("DistanceX", -1, 1, 0, 3, Q("37 mm")),
    Sketcher.Constraint("DistanceY", -1, 1, 0, 3, Q("47.5 mm")),
])
pocket11 = body.newObject("PartDesign::Pocket", "Pocket010")
pocket11.Profile = sketch14
pocket11.Type = "UpToFirst"

sketch15 = body.newObject("Sketcher::SketchObject", "Sketch014")
sketch15.AttachmentSupport = (doc.getObject("YZ_Plane"), [""])
sketch15.MapMode = "FlatFace"
sketch15.AttachmentOffset = App.Placement(V(0, 0, 50), App.Rotation())
sketch15.addGeometry(Part.Circle(V(97, -47.5, 0), V(0, 0, 1), 2.5), False)
sketch15.addConstraint([
    Sketcher.Constraint("Diameter", 0, Q("5 mm")),
    Sketcher.Constraint("DistanceX", -1, 1, 0, 3, Q("97 mm")),
    Sketcher.Constraint("DistanceY", 0, 3, -1, 1, Q("47.5 mm")),
])
pocket12 = body.newObject("PartDesign::Pocket", "Pocket011")
pocket12.Profile = sketch15
pocket12.Type = "UpToFirst"

sketch16 = body.newObject("Sketcher::SketchObject", "Sketch015")
sketch16.AttachmentSupport = (doc.getObject("YZ_Plane"), [""])
sketch16.MapMode = "FlatFace"
sketch16.AttachmentOffset = App.Placement(V(0, 0, 50), App.Rotation())
sketch16.addGeometry(Part.Circle(V(37, -47.5, 0), V(0, 0, 1), 2.5), False)
sketch16.addConstraint([
    Sketcher.Constraint("Diameter", 0, Q("5 mm")),
    Sketcher.Constraint("DistanceX", -1, 1, 0, 3, Q("37 mm")),
    Sketcher.Constraint("DistanceY", 0, 3, -1, 1, Q("47.5 mm")),
])
pocket13 = body.newObject("PartDesign::Pocket", "Pocket012")
pocket13.Profile = sketch16
pocket13.Type = "UpToFirst"
doc.recompute()

fillet = body.newObject("PartDesign::Fillet", "Fillet")
fillet.Base = (pocket13, edges_at(pocket13, [(47.5, 105, 40), (47.5, 105, -40)]))
fillet.Radius = 5

doc.recompute()
